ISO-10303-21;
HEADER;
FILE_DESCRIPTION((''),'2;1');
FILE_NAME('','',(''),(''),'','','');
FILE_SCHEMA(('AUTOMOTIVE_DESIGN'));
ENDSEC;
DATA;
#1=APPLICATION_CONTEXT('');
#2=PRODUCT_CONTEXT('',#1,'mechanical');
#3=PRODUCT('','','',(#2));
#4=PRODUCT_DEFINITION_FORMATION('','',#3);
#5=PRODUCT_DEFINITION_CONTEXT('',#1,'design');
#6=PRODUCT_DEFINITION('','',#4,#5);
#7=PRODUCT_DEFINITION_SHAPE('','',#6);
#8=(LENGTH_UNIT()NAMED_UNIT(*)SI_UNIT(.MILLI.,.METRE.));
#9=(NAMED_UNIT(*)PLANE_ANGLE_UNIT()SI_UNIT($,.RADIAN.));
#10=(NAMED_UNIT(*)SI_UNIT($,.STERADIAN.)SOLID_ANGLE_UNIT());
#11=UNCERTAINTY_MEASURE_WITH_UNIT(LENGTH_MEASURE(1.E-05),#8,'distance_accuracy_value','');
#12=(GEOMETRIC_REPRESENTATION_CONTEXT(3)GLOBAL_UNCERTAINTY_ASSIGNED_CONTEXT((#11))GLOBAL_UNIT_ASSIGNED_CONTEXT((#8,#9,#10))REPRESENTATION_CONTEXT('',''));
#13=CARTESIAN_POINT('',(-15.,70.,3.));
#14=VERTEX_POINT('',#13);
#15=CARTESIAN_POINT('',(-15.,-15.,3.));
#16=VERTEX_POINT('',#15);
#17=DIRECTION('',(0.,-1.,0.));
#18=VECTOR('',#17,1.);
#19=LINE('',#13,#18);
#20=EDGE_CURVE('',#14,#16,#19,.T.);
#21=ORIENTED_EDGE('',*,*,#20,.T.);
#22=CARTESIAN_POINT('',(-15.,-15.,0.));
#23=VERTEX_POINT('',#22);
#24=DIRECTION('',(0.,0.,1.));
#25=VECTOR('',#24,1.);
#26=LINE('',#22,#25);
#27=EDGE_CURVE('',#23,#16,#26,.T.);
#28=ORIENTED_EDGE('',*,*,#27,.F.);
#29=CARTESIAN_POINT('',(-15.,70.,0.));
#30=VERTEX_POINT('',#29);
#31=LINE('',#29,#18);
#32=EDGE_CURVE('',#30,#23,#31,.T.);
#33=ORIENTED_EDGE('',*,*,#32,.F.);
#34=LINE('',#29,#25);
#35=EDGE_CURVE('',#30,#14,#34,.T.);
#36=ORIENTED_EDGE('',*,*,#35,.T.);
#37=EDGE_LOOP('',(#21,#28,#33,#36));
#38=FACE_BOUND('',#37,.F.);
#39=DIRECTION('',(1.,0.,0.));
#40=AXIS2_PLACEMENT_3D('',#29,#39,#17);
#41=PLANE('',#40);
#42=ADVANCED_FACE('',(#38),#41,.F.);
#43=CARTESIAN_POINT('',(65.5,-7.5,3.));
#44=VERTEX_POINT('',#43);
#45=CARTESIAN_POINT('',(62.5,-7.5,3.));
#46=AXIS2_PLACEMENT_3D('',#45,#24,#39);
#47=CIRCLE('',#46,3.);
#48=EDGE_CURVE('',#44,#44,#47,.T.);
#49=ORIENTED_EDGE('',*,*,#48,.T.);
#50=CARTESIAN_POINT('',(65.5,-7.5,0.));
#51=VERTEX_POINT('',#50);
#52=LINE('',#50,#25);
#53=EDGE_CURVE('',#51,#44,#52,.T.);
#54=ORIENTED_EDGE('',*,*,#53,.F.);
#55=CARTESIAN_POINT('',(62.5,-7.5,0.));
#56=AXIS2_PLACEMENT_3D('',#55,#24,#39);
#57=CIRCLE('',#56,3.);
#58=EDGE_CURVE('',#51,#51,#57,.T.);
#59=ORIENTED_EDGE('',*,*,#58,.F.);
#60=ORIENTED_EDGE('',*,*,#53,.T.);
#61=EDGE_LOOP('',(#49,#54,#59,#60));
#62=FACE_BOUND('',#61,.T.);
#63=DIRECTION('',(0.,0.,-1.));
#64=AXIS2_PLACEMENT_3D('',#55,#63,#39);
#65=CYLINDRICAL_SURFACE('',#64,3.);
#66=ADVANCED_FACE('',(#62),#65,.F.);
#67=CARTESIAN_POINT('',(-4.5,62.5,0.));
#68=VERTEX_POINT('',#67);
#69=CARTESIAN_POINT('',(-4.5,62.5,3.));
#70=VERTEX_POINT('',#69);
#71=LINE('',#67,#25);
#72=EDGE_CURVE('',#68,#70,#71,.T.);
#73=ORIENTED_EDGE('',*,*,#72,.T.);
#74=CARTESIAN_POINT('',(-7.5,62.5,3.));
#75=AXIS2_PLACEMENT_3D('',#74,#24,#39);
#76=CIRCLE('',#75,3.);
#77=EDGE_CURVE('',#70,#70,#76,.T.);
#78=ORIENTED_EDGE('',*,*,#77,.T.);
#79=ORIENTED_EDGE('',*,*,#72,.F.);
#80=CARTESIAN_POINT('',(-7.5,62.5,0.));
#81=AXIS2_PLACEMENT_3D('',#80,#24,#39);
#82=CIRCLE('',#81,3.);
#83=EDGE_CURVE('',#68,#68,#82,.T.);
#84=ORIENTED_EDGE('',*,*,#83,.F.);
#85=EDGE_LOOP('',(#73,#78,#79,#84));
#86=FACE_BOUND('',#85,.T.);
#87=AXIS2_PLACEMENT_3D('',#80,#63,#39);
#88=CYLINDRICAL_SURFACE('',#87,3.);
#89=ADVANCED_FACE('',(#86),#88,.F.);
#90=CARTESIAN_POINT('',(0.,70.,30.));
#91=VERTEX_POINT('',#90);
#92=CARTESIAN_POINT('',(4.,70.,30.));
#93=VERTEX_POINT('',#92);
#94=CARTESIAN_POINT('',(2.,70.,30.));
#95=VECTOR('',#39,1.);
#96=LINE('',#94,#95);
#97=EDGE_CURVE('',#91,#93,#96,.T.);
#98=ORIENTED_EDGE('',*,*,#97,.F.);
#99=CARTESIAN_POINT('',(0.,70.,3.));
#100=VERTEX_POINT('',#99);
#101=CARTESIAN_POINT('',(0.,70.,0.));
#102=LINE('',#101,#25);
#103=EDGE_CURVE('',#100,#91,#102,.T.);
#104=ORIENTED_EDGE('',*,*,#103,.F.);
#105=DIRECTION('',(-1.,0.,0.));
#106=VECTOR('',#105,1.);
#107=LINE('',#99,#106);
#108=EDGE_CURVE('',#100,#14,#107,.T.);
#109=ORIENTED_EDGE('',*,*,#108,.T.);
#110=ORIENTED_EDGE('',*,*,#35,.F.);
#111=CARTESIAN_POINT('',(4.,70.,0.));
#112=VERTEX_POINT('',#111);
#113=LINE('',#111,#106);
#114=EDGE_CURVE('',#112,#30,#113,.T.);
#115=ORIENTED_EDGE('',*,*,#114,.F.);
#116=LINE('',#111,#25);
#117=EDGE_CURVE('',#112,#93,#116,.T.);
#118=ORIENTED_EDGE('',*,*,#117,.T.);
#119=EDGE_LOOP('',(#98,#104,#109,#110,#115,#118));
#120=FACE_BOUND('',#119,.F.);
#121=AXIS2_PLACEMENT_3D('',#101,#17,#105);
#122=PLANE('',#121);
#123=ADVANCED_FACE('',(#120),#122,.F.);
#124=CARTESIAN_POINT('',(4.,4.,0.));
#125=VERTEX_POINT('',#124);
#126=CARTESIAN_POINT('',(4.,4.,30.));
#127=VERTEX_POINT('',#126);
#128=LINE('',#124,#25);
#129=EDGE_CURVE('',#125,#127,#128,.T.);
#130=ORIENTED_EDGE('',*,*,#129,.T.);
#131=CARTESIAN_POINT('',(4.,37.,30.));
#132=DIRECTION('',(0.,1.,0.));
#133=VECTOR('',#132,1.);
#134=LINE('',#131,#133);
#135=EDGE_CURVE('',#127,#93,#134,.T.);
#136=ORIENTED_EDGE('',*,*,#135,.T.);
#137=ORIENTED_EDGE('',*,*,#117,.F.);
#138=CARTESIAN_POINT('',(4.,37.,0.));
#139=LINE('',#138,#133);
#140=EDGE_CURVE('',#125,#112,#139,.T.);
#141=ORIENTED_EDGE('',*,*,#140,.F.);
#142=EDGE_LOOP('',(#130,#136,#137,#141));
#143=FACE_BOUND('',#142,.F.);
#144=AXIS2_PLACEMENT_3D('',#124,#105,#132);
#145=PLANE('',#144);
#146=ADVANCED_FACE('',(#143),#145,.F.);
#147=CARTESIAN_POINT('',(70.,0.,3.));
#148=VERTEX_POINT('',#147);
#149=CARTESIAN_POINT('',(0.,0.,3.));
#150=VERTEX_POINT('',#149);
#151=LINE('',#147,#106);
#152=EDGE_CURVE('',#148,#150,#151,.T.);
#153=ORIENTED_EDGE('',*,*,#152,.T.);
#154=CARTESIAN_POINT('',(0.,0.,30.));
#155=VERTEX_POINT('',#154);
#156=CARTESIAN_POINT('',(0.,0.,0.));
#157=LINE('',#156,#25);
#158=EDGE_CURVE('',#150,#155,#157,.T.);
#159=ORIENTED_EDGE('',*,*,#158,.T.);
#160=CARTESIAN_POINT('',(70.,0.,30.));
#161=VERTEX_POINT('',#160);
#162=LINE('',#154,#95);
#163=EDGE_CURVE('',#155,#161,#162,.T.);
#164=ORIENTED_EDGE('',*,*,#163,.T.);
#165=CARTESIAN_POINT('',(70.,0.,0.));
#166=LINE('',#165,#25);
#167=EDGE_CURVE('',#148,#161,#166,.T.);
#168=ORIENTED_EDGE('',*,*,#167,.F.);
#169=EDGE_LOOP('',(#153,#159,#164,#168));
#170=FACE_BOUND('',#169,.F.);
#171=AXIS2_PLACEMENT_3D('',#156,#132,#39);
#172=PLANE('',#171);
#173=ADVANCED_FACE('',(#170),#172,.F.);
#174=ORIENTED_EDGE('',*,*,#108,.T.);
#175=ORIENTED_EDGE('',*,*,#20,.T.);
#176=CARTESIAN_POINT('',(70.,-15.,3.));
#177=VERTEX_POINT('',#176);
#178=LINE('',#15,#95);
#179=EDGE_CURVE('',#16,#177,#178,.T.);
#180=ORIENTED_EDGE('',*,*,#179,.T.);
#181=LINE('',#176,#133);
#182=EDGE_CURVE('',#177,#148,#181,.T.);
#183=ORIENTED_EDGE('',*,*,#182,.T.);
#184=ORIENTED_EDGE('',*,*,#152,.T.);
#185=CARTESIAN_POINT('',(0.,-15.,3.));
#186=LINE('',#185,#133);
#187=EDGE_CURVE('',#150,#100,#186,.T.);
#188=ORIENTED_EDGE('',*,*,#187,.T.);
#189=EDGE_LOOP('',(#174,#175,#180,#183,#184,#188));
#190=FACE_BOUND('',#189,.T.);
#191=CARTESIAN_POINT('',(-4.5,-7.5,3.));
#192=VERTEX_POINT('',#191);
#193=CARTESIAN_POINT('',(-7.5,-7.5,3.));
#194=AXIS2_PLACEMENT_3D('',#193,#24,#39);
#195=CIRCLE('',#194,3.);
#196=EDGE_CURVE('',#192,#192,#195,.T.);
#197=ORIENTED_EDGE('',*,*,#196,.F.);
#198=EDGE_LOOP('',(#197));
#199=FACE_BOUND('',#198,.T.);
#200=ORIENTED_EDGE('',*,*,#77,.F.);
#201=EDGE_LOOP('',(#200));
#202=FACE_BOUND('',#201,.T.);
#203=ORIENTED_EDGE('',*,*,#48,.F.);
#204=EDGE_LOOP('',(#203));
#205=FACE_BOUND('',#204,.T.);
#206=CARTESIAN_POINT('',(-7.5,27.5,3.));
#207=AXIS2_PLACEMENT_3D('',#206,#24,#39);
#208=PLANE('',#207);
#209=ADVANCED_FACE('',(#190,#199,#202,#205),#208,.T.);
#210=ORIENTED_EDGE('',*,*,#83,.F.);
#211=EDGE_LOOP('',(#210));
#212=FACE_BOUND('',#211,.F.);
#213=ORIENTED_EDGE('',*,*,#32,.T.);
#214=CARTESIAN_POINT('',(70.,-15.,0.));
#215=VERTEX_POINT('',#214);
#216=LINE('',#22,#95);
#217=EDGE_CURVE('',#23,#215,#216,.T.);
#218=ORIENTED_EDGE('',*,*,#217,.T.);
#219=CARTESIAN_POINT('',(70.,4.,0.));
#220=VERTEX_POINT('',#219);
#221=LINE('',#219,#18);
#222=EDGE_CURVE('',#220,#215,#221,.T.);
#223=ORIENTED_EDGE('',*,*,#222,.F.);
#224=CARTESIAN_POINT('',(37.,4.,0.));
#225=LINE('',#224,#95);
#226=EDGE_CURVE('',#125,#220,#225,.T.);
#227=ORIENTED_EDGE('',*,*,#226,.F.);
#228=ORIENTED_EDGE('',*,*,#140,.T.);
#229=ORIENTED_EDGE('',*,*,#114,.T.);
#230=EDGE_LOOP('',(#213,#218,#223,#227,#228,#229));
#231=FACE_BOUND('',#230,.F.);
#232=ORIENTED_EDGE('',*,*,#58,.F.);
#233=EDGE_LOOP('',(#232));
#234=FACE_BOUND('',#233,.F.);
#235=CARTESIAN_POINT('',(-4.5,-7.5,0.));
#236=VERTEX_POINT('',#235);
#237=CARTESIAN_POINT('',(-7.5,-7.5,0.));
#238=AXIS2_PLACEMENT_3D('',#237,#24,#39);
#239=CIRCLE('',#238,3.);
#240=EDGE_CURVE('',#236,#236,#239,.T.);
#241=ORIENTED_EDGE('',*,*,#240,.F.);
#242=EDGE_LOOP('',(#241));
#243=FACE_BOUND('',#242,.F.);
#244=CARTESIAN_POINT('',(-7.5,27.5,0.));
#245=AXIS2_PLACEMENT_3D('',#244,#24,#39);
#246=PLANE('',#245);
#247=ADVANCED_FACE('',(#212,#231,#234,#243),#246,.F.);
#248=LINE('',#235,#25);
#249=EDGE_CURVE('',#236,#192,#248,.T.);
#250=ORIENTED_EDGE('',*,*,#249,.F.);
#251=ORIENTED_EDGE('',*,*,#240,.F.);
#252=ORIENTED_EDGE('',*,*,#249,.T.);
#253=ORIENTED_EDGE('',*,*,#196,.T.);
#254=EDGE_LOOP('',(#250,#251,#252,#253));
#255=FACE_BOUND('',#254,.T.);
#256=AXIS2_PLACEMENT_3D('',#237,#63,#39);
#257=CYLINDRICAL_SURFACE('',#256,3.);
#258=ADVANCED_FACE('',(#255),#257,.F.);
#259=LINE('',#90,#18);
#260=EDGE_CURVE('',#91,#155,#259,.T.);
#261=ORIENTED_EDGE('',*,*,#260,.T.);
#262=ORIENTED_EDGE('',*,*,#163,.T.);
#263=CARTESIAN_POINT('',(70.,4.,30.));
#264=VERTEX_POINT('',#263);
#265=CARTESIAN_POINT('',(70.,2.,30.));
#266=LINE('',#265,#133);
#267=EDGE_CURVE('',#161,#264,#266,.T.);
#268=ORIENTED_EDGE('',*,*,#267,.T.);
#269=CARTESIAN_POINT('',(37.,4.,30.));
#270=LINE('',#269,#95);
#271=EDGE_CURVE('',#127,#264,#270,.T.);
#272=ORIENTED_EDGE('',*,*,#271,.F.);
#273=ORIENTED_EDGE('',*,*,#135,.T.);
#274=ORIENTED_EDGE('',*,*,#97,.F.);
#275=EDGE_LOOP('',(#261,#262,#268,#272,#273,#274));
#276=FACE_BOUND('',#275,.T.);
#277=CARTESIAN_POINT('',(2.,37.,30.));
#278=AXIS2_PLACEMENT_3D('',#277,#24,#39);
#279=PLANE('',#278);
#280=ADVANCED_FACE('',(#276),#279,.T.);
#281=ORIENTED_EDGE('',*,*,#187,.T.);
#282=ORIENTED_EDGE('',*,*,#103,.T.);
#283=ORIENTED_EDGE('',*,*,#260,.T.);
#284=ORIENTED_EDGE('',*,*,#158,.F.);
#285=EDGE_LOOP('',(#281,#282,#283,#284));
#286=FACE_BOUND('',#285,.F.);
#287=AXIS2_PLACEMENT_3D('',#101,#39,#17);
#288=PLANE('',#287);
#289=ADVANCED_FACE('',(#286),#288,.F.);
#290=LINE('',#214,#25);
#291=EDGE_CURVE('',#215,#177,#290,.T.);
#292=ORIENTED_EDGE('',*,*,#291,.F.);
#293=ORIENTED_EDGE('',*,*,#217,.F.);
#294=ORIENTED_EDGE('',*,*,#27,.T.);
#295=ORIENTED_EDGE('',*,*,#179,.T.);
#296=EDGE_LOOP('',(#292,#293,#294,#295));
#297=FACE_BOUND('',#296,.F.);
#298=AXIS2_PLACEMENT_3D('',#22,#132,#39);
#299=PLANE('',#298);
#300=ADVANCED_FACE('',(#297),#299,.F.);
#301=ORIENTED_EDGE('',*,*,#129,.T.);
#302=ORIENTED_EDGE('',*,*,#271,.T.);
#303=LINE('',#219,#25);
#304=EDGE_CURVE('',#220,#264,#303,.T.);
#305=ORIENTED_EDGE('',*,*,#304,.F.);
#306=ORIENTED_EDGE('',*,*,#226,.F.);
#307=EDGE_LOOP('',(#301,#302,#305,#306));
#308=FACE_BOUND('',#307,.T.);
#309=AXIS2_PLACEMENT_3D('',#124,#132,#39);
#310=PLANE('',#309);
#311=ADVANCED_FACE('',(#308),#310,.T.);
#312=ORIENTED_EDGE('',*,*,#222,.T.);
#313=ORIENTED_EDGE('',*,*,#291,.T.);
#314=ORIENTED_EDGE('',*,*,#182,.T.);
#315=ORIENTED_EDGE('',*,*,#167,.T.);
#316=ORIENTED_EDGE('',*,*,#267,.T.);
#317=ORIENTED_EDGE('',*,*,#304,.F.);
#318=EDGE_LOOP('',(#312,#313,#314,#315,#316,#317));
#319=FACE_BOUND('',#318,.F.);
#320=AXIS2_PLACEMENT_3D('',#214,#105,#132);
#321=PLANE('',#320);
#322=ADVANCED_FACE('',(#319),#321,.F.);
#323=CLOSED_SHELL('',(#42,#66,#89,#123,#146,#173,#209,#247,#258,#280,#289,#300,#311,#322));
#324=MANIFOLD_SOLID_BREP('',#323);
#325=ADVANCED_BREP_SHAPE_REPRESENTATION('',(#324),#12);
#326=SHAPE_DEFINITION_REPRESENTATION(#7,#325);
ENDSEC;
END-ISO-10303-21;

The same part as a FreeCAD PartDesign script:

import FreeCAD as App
import Part
import Sketcher
from FreeCAD import Vector
Q = App.Units.Quantity

doc = App.newDocument("Part")
body = doc.addObject("PartDesign::Body", "Body")

sketch1 = doc.addObject("Sketcher::SketchObject", "Sketch")
body.addObject(sketch1)
sketch1.AttachmentSupport = (doc.XY_Plane, [""])
sketch1.MapMode = "FlatFace"
sketch1.addGeometry([
    Part.LineSegment(Vector(0, 70, 0), Vector(0, 0, 0)),
    Part.LineSegment(Vector(0, 0, 0), Vector(70, 0, 0)),
    Part.LineSegment(Vector(70, 0, 0), Vector(70, 4, 0)),
    Part.LineSegment(Vector(70, 4, 0), Vector(4, 4, 0)),
    Part.LineSegment(Vector(4, 4, 0), Vector(4, 70, 0)),
    Part.LineSegment(Vector(4, 70, 0), Vector(0, 70, 0)),
], False)
sketch1.addConstraint([
    Sketcher.Constraint("Coincident", 0, 2, 1, 1),
    Sketcher.Constraint("Coincident", 1, 2, 2, 1),
    Sketcher.Constraint("Coincident", 2, 2, 3, 1),
    Sketcher.Constraint("Coincident", 3, 2, 4, 1),
    Sketcher.Constraint("Coincident", 4, 2, 5, 1),
    Sketcher.Constraint("Coincident", 5, 2, 0, 1),
    Sketcher.Constraint("Vertical", 0),
    Sketcher.Constraint("Horizontal", 1),
    Sketcher.Constraint("Vertical", 2),
    Sketcher.Constraint("Horizontal", 3),
    Sketcher.Constraint("Vertical", 4),
    Sketcher.Constraint("Horizontal", 5),
    Sketcher.Constraint("Coincident", 0, 2, -1, 1),
    Sketcher.Constraint("Equal", 1, 0),
    Sketcher.Constraint("Equal", 5, 2),
    Sketcher.Constraint("DistanceX", 1, 1, 1, 2, Q("70 mm")),
    Sketcher.Constraint("DistanceX", 3, 2, 3, 1, Q("66 mm")),
])
pad1 = doc.addObject("PartDesign::Pad", "Pad")
body.addObject(pad1)
pad1.Profile = sketch1
pad1.Length = 30

sketch2 = doc.addObject("Sketcher::SketchObject", "Sketch001")
body.addObject(sketch2)
sketch2.AttachmentSupport = (doc.XY_Plane, [""])
sketch2.MapMode = "FlatFace"
sketch2.addGeometry([
    Part.LineSegment(Vector(0, 0, 0), Vector(0, 70, 0)),
    Part.LineSegment(Vector(0, 70, 0), Vector(-15, 70, 0)),
    Part.LineSegment(Vector(-15, 70, 0), Vector(-15, -15, 0)),
    Part.LineSegment(Vector(-15, -15, 0), Vector(70, -15, 0)),
    Part.LineSegment(Vector(70, -15, 0), Vector(70, 0, 0)),
    Part.LineSegment(Vector(70, 0, 0), Vector(0, 0, 0)),
    Part.Circle(Vector(-7.5, -7.5, 0), Vector(0, 0, 1), 3),
    Part.Circle(Vector(62.5, -7.5, 0), Vector(0, 0, 1), 3),
    Part.Circle(Vector(-7.5, 62.5, 0), Vector(0, 0, 1), 3),
], False)
sketch2.addConstraint([
    Sketcher.Constraint("Coincident", 0, 2, 1, 1),
    Sketcher.Constraint("Coincident", 1, 2, 2, 1),
    Sketcher.Constraint("Coincident", 2, 2, 3, 1),
    Sketcher.Constraint("Coincident", 3, 2, 4, 1),
    Sketcher.Constraint("Coincident", 4, 2, 5, 1),
    Sketcher.Constraint("Coincident", 5, 2, 0, 1),
    Sketcher.Constraint("Vertical", 0),
    Sketcher.Constraint("Horizontal", 1),
    Sketcher.Constraint("Vertical", 2),
    Sketcher.Constraint("Horizontal", 3),
    Sketcher.Constraint("Vertical", 4),
    Sketcher.Constraint("Horizontal", 5),
    Sketcher.Constraint("Coincident", 5, 2, -1, 1),
    Sketcher.Constraint("Equal", 6, 7),
    Sketcher.Constraint("Equal", 7, 8),
    Sketcher.Constraint("Horizontal", 6, 3, 7, 3),
    Sketcher.Constraint("Vertical", 6, 3, 8, 3),
    Sketcher.Constraint("Equal", 5, 0),
    Sketcher.Constraint("Equal", 3, 2),
    Sketcher.Constraint("Diameter", 6, Q("6 mm")),
    Sketcher.Constraint("DistanceX", 1, 2, 1, 1, Q("15 mm")),
    Sketcher.Constraint("DistanceX", 3, 1, 3, 2, Q("85 mm")),
    Sketcher.Constraint("DistanceX", 6, 3, 7, 3, Q("70 mm")),
    Sketcher.Constraint("DistanceY", 6, 3, 8, 3, Q("70 mm")),
    Sketcher.Constraint("DistanceX", 6, 3, -1, 1, Q("7.5 mm")),
    Sketcher.Constraint("DistanceY", 6, 3, -1, 1, Q("7.5 mm")),
])
pad2 = doc.addObject("PartDesign::Pad", "Pad001")
body.addObject(pad2)
pad2.Profile = sketch2
pad2.Length = 3

doc.recompute()
